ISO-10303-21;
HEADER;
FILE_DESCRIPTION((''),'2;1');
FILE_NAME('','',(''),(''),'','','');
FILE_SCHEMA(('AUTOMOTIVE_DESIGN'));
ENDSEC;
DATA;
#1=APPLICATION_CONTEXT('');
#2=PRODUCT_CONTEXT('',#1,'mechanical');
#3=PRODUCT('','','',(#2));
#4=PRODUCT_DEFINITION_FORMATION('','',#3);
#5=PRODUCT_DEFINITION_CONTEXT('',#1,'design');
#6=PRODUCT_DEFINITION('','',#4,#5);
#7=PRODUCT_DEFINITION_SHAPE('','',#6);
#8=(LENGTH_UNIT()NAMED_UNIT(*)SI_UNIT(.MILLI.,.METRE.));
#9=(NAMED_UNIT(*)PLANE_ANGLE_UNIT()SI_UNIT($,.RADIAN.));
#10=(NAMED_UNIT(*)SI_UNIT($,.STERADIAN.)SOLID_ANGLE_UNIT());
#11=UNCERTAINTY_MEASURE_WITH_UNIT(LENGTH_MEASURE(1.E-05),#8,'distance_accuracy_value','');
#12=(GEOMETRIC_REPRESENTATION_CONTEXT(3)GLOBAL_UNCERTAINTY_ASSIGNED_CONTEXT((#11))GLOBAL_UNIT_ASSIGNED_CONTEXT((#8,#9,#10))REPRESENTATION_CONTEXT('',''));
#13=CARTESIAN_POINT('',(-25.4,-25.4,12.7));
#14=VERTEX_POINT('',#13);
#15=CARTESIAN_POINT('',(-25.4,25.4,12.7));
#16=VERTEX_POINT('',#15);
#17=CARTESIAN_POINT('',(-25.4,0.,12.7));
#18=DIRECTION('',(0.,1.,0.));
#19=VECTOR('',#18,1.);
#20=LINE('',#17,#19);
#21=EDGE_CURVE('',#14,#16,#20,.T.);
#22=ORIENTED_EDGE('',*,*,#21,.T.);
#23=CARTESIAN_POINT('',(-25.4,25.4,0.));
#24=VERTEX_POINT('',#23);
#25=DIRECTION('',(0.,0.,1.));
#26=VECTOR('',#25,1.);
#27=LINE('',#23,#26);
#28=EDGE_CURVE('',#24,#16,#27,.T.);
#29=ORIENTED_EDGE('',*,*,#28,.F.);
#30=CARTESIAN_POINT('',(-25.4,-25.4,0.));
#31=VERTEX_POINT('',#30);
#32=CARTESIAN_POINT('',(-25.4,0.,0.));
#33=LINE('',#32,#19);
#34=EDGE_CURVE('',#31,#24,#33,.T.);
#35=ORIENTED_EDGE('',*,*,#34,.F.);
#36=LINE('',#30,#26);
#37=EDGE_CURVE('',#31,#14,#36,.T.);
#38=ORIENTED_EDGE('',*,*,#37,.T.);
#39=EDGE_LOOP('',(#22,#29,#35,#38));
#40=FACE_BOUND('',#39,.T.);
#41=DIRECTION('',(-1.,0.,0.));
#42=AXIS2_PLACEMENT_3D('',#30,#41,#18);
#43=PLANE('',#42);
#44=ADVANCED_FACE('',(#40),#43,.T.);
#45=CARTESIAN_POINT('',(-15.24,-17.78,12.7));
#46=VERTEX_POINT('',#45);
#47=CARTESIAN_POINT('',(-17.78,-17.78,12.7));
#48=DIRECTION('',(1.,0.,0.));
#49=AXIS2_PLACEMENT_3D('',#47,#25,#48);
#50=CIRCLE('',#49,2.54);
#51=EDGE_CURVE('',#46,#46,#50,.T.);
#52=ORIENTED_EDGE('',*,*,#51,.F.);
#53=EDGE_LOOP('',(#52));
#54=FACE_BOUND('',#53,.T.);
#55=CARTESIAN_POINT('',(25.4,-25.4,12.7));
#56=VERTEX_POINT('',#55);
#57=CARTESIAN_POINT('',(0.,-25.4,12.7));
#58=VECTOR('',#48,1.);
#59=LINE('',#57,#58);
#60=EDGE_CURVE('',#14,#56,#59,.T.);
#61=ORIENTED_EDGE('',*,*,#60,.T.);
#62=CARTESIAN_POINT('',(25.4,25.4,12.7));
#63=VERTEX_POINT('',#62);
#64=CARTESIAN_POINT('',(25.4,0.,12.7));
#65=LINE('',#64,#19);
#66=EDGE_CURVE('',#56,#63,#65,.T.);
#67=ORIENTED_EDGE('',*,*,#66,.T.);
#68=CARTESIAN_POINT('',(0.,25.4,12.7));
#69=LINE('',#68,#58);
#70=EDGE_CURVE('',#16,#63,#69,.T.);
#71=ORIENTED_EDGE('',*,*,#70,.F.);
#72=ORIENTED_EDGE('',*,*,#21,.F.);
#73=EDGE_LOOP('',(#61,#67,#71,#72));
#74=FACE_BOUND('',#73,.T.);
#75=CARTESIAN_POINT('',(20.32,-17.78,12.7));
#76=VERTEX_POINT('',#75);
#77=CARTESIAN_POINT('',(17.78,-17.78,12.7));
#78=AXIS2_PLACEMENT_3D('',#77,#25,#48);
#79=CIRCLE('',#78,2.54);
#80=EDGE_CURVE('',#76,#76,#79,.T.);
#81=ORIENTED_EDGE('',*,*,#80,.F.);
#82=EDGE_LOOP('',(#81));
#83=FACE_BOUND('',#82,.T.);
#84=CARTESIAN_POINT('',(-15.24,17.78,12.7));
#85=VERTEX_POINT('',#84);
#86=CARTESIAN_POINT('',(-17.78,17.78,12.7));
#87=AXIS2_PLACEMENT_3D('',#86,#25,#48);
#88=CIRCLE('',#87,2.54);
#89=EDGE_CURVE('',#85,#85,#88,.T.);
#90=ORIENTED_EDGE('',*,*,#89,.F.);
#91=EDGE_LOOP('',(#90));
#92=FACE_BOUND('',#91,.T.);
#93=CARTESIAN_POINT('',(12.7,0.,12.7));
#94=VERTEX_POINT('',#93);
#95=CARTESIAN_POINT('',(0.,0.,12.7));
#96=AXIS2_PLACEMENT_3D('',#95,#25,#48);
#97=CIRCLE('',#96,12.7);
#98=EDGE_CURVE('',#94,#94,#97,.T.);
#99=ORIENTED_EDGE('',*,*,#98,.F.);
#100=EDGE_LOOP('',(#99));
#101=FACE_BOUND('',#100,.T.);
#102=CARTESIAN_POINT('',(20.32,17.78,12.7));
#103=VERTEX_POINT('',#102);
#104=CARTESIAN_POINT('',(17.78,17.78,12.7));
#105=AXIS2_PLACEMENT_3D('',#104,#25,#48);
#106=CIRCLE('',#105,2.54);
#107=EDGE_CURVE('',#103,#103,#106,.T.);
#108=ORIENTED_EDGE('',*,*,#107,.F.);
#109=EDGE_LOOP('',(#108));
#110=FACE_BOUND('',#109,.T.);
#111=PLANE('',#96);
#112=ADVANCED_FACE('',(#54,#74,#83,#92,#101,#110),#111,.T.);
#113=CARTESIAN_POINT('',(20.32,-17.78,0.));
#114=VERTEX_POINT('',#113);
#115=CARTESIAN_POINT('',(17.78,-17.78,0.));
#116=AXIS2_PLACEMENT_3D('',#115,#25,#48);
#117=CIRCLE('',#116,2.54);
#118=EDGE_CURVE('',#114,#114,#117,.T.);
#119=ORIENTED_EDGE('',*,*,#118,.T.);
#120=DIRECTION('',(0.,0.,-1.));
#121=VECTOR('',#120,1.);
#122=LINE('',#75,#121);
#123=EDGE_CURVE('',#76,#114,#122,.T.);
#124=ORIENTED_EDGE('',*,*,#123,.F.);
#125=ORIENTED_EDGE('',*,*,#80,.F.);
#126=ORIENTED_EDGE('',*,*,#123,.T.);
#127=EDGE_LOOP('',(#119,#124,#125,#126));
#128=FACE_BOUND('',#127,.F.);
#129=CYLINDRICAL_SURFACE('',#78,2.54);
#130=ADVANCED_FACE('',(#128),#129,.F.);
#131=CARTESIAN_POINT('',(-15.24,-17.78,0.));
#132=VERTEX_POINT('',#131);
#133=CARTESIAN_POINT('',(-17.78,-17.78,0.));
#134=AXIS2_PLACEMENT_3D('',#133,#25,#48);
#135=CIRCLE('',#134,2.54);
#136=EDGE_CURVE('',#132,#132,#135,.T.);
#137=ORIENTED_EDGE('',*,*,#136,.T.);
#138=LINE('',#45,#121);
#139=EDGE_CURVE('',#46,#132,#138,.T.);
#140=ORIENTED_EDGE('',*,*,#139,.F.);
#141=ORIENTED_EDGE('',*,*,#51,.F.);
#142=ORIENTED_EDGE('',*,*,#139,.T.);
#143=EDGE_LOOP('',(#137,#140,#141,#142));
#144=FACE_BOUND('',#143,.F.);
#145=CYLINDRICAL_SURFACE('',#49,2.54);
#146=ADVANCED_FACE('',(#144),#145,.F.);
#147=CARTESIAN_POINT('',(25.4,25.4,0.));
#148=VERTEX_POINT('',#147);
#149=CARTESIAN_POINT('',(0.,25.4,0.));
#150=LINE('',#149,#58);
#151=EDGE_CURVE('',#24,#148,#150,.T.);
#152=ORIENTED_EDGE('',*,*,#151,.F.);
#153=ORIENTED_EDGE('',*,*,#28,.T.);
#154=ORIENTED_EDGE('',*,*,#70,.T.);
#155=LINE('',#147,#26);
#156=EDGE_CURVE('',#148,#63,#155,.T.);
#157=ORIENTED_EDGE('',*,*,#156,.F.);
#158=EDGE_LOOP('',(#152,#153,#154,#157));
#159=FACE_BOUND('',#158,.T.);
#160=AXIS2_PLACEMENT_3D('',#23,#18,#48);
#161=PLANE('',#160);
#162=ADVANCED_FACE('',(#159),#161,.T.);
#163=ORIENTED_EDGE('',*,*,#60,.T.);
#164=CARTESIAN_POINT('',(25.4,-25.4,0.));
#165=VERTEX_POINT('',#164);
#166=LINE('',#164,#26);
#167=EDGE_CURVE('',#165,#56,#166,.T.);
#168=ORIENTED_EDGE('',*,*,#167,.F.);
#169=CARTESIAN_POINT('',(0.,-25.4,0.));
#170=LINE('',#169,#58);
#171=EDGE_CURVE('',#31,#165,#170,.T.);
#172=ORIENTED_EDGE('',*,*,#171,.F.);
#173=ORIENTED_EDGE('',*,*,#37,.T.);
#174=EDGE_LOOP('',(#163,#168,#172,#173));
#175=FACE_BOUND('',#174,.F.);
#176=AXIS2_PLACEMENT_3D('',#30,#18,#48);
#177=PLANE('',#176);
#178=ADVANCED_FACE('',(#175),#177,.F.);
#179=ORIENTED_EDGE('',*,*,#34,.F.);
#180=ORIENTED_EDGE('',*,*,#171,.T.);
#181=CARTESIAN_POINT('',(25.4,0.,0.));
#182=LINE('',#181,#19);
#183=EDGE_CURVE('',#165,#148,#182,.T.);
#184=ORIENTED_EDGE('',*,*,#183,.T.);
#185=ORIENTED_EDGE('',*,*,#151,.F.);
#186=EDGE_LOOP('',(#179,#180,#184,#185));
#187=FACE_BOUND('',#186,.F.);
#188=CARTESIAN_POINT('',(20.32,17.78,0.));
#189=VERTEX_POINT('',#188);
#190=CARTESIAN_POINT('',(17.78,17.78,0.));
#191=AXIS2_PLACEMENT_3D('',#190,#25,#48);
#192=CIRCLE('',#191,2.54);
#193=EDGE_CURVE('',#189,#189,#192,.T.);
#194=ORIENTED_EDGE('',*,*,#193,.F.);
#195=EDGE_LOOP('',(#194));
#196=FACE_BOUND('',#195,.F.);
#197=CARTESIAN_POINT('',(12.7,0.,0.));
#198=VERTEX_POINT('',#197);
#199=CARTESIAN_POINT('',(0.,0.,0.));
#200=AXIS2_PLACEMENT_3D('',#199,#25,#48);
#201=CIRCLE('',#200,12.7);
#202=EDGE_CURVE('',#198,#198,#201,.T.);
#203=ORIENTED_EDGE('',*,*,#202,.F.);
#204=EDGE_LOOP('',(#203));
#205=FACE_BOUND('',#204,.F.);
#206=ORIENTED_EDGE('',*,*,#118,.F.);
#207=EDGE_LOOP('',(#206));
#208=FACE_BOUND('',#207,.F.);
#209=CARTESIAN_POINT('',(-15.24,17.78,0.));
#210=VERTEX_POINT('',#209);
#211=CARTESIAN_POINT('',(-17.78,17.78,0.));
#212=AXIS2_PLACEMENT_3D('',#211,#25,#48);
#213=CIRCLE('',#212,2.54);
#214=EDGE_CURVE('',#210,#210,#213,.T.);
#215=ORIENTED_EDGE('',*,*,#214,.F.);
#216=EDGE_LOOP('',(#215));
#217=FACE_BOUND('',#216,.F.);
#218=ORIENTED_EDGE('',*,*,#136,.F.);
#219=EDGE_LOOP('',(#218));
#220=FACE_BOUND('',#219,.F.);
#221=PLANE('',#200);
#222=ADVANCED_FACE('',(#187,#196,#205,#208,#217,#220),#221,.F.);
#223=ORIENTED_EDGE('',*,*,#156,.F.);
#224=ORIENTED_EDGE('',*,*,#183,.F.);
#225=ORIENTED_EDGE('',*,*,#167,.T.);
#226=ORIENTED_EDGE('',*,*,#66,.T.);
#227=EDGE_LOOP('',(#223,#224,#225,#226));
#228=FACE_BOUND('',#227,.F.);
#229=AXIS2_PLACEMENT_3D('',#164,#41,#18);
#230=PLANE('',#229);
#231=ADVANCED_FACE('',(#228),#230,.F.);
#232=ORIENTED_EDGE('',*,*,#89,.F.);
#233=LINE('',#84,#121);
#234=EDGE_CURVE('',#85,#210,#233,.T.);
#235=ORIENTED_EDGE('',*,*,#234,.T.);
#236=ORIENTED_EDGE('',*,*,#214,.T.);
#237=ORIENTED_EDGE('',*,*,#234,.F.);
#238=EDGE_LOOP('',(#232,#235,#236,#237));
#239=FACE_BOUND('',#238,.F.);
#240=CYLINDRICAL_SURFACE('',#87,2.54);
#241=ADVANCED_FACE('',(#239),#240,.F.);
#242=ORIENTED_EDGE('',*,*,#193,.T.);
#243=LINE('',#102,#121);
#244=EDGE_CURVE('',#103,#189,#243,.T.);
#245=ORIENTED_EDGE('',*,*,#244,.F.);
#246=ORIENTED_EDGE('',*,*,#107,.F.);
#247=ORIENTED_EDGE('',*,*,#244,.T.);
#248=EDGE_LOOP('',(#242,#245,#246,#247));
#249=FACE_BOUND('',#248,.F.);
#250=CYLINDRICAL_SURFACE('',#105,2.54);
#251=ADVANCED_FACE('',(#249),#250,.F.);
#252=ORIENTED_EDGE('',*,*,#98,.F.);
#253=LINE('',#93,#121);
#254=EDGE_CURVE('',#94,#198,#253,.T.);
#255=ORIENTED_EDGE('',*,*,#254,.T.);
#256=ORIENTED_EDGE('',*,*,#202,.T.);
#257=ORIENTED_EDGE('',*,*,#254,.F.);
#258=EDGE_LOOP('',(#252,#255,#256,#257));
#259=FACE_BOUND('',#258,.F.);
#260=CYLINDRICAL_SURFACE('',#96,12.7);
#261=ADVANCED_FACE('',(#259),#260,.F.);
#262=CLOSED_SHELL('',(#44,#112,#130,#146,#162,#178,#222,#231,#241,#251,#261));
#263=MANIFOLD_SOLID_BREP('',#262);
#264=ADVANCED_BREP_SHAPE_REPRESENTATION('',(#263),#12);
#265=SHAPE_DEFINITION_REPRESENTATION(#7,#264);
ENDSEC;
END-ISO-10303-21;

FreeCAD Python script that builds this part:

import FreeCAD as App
import Part
import Sketcher
from FreeCAD import Vector
Q = App.Units.Quantity


def add_polygon(sketch, points):
    """Adds a closed chain of lines whose ends are joined by coincident constraints."""
    first, n = sketch.GeometryCount, len(points)
    for a, b in zip(points, points[1:] + points[:1]):
        sketch.addGeometry(Part.LineSegment(App.Vector(*a, 0), App.Vector(*b, 0)), False)
    for i in range(n):
        sketch.addConstraint(Sketcher.Constraint("Coincident", first + i, 2, first + (i + 1) % n, 1))

doc = App.newDocument("Part")
params = doc.addObject("Spreadsheet::Sheet", "Params")
for row, (alias, value) in enumerate([
    ("sketch1_width", "2 in"),
    ("pad1_length", "0.5 in"),
    ("sketch2_diameter", "1 in"),
    ("sketch2_diameter2", "0.2 in"),
    ("pocket1_length", "0.99 in"),
], start=1):
    params.set(f"A{row}", alias)
    params.set(f"B{row}", "=" + value)
    params.setAlias(f"B{row}", alias)

body = doc.addObject("PartDesign::Body", "Body")

sketch1 = doc.addObject("Sketcher::SketchObject", "Sketch")
body.addObject(sketch1)
sketch1.AttachmentSupport = (doc.XY_Plane, [""])
sketch1.MapMode = "FlatFace"
add_polygon(sketch1, [(-25, 25), (-25, -25), (25, -25), (25, 25)])
sketch1.addConstraint([
    Sketcher.Constraint("Vertical", 0),
    Sketcher.Constraint("Horizontal", 1),
    Sketcher.Constraint("Vertical", 2),
    Sketcher.Constraint("Horizontal", 3),
    Sketcher.Constraint("Symmetric", 0, 2, 2, 2, -1, 1),
    Sketcher.Constraint("Equal", 3, 0),
    Sketcher.Constraint("DistanceX", 1, 1, 1, 2, Q("2 in")),
])
sketch1.setExpression("Constraints[10]", "Params.sketch1_width")
pad1 = doc.addObject("PartDesign::Pad", "Pad")
body.addObject(pad1)
pad1.Profile = sketch1
pad1.setExpression("Length", "Params.pad1_length")

sketch2 = doc.addObject("Sketcher::SketchObject", "Sketch001")
body.addObject(sketch2)
sketch2.AttachmentSupport = (doc.XY_Plane, [""])
sketch2.MapMode = "FlatFace"
sketch2.AttachmentOffset = App.Placement(Vector(0, 0, 0.5 * 25.4), App.Rotation())
sketch2.addGeometry([
    Part.Circle(Vector(17.8, 17.8, 0), Vector(0, 0, 1), 2.5),
    Part.Circle(Vector(17.8, -17.8, 0), Vector(0, 0, 1), 2.5),
    Part.Circle(Vector(-17.8, 17.8, 0), Vector(0, 0, 1), 2.5),
    Part.Circle(Vector(-17.8, -17.8, 0), Vector(0, 0, 1), 2.5),
    Part.Circle(Vector(0, 0, 0), Vector(0, 0, 1), 12.7),
], False)
sketch2.addConstraint([
    Sketcher.Constraint("Coincident", 4, 3, -1, 1),
    Sketcher.Constraint("Equal", 0, 1),
    Sketcher.Constraint("Equal", 1, 2),
    Sketcher.Constraint("Equal", 2, 3),
    Sketcher.Constraint("Symmetric", 1, 3, 2, 3, -1, 1),
    Sketcher.Constraint("Symmetric", 0, 3, 3, 3, -1, 1),
    Sketcher.Constraint("Symmetric", 0, 3, 2, 3, -2),
    Sketcher.Constraint("Diameter", 4, Q("1 in")),
    Sketcher.Constraint("Diameter", 0, Q("0.2 in")),
    Sketcher.Constraint("DistanceX", -1, 1, 0, 3, Q("0.7 in")),
    Sketcher.Constraint("DistanceY", -1, 1, 0, 3, Q("0.7 in")),
])
sketch2.setExpression("Constraints[7]", "Params.sketch2_diameter")
sketch2.setExpression("Constraints[8]", "Params.sketch2_diameter2")
pocket1 = doc.addObject("PartDesign::Pocket", "Pocket")
body.addObject(pocket1)
pocket1.Profile = sketch2
pocket1.setExpression("Length", "Params.pocket1_length")

doc.recompute()
